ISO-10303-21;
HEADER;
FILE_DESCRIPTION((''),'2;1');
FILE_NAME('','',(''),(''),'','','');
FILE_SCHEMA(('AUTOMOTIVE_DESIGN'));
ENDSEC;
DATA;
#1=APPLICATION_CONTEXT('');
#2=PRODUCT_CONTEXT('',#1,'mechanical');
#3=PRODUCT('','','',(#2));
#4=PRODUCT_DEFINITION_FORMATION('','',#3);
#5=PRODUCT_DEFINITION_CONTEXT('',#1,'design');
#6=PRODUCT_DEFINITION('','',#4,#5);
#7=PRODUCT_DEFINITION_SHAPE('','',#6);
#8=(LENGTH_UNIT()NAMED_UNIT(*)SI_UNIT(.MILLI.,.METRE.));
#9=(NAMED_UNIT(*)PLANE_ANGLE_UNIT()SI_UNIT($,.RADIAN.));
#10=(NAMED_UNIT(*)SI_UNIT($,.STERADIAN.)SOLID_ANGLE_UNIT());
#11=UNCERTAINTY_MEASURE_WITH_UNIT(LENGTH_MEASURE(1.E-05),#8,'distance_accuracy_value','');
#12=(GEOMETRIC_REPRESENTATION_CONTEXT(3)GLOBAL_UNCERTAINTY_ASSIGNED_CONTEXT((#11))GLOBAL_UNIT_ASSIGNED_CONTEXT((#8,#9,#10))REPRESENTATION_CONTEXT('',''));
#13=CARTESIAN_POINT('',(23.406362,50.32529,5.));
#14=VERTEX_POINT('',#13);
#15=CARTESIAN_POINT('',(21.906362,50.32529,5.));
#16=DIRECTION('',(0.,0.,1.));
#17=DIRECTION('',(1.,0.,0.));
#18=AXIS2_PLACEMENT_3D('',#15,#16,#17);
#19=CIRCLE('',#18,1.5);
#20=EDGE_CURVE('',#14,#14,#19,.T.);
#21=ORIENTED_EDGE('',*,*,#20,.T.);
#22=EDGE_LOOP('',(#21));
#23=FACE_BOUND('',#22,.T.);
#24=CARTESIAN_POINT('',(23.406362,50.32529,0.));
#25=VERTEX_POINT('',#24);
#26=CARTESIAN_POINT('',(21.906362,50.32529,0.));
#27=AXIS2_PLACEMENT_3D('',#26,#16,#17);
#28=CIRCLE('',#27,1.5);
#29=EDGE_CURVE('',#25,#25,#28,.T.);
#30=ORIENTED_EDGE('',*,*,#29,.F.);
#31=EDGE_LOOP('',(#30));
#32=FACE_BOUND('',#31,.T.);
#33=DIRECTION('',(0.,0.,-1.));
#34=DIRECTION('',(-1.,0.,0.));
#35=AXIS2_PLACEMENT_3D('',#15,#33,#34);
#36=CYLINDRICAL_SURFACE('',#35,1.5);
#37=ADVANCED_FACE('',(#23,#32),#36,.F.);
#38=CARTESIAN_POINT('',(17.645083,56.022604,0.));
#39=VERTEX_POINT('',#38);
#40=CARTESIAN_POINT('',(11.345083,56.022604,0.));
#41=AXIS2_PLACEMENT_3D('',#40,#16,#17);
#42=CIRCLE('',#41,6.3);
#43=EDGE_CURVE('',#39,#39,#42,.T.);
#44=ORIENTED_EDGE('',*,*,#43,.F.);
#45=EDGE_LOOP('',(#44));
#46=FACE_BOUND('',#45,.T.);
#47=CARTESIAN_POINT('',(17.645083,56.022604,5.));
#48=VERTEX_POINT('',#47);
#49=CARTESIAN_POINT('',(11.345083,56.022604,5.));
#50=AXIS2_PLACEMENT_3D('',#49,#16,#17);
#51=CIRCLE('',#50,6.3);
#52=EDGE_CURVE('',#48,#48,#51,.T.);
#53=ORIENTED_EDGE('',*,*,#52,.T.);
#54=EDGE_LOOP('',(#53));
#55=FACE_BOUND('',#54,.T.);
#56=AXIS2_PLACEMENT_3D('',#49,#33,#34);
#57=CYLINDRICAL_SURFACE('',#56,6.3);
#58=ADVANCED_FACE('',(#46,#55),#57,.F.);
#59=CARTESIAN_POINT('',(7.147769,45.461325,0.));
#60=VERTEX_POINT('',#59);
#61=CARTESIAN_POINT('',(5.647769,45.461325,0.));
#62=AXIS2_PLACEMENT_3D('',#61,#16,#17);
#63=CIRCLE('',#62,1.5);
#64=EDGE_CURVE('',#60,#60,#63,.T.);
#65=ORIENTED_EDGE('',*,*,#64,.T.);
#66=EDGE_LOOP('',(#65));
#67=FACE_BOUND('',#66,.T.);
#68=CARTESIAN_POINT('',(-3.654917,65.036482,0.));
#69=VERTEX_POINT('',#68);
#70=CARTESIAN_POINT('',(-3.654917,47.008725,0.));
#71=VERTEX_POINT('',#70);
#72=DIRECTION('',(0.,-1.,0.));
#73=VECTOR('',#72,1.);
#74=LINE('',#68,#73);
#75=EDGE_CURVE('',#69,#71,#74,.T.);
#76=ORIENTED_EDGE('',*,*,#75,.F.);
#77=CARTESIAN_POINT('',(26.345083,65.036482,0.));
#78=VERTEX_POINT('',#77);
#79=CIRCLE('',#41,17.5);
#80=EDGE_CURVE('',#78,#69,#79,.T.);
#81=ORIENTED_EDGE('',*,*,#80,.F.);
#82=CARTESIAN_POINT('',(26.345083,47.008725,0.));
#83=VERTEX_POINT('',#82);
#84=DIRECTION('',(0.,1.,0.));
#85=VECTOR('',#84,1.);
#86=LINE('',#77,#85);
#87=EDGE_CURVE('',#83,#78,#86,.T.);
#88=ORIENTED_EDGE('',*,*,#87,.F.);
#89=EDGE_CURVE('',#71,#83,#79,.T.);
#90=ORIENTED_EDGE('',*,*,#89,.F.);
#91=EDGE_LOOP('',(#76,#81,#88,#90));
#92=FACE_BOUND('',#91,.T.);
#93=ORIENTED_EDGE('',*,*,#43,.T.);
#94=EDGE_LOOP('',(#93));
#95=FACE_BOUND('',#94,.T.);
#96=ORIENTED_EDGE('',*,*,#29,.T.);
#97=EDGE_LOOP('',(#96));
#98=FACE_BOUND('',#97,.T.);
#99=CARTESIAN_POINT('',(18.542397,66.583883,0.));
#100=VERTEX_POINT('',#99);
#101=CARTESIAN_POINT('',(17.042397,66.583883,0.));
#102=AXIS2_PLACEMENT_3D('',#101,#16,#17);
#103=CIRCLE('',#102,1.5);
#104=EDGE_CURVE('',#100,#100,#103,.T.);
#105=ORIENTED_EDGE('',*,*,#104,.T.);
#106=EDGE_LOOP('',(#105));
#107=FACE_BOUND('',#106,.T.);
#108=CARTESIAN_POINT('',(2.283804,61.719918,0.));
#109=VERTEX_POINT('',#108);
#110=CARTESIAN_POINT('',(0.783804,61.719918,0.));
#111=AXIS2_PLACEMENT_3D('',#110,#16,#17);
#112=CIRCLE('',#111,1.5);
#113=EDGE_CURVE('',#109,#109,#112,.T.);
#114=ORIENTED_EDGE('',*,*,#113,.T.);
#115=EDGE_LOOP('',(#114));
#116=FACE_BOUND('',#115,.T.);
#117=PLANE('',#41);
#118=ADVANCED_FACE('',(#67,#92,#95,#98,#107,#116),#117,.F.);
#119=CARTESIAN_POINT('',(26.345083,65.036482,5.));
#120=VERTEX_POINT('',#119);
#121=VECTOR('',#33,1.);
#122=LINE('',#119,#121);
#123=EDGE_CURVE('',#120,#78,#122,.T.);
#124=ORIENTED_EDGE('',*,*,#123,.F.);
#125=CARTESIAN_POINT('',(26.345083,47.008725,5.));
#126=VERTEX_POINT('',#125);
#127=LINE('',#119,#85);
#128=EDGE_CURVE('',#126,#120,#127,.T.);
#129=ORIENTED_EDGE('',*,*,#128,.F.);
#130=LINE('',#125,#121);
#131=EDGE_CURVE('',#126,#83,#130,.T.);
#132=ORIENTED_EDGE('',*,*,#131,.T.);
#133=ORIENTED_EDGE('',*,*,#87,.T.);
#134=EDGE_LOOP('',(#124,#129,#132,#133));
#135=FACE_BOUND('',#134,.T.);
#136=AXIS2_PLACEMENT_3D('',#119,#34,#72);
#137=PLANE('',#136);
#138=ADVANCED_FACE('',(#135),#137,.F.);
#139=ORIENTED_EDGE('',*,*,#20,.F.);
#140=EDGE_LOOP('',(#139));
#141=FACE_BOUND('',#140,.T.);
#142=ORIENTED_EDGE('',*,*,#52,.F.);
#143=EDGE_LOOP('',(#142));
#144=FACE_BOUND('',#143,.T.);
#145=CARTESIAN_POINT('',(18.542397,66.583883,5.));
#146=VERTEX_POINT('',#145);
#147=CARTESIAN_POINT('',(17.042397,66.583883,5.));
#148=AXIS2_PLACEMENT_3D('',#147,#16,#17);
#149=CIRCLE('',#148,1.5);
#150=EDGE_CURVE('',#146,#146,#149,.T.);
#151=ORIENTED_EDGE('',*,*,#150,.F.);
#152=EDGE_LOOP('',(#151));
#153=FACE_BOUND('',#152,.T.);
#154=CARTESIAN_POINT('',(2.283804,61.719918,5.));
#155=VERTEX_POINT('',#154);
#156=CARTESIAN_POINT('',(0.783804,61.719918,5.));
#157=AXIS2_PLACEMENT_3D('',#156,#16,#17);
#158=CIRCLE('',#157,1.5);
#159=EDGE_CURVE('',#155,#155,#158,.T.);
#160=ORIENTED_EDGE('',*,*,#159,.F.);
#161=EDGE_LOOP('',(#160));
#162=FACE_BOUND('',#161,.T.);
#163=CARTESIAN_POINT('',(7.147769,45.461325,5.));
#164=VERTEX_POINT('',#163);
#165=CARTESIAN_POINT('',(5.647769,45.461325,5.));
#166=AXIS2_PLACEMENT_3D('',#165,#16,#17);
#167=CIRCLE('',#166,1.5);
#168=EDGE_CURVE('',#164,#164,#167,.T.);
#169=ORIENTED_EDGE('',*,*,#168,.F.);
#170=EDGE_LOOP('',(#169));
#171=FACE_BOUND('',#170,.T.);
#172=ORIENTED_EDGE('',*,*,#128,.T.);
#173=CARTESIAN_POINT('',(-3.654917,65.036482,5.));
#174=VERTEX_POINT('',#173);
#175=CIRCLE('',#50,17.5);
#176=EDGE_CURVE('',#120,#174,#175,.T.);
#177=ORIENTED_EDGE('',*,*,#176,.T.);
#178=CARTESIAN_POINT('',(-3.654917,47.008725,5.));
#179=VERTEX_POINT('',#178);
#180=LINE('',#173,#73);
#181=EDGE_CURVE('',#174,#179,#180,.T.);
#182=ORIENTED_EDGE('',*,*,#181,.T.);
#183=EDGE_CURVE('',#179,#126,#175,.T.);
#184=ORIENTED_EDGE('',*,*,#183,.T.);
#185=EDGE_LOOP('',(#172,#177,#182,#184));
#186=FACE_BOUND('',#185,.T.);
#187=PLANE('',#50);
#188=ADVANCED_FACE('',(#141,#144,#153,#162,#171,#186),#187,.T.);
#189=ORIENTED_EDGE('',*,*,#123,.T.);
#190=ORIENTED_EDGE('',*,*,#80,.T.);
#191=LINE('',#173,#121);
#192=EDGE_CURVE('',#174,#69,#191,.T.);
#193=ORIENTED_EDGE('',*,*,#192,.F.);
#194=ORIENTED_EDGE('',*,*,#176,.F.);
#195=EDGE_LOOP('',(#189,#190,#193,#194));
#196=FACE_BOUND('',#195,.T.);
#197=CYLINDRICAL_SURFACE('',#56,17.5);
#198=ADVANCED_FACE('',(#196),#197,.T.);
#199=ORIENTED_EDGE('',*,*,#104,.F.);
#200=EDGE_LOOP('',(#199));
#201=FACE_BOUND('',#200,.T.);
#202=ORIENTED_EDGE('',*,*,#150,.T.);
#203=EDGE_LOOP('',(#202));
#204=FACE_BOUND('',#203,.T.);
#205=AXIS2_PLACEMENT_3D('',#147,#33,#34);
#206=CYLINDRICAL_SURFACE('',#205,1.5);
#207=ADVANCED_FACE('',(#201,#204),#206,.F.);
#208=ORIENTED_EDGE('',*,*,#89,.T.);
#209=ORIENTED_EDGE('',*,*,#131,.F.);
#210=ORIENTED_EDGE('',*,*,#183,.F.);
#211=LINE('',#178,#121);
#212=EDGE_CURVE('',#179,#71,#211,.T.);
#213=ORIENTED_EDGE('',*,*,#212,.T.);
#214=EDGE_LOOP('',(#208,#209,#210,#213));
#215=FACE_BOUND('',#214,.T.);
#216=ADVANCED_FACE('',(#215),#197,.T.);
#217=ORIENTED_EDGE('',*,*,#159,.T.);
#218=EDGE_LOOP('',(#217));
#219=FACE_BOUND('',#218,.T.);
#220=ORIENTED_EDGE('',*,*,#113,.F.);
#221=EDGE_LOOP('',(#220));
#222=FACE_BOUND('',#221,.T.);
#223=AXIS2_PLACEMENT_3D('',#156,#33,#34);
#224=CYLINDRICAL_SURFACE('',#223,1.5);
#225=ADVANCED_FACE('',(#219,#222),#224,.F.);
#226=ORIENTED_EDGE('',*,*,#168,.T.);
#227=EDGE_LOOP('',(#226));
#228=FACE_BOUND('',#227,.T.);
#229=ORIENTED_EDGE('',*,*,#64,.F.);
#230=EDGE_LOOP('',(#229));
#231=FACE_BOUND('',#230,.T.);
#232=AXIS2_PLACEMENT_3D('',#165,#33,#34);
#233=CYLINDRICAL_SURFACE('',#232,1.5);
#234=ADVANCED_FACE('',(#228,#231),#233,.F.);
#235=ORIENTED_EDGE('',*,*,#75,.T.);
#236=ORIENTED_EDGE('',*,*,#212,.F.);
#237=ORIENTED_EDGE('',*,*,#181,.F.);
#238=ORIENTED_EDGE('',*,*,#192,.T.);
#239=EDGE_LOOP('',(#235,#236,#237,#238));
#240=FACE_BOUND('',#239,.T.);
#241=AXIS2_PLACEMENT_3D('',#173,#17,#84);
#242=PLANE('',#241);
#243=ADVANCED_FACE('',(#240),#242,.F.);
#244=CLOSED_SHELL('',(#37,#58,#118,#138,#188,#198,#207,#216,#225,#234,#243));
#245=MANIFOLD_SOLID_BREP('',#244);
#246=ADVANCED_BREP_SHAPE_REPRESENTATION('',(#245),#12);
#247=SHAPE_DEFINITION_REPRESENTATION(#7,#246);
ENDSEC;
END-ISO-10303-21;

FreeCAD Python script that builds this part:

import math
import FreeCAD as App
import Part
import Sketcher

doc = App.newDocument("Part")
params = doc.addObject("Spreadsheet::Sheet", "Params")
for row, (alias, value) in enumerate([
    ("sketch1_diameter", "3 mm"),
    ("sketch1_diameter2", "12.6 mm"),
    ("sketch1_radius", "17.5 mm"),
    ("pad1_length", "5 mm"),
], start=1):
    params.set(f"A{row}", alias)
    params.set(f"B{row}", "=" + value)
    params.setAlias(f"B{row}", alias)

body = doc.addObject("PartDesign::Body", "Body")

sketch1 = body.newObject("Sketcher::SketchObject", "Sketch")
sketch1.AttachmentSupport = (doc.getObject("XY_Plane"), [""])
sketch1.MapMode = "FlatFace"
sketch1.addGeometry(Part.LineSegment(App.Vector(-3.7, 65, 0), App.Vector(-3.7, 47, 0)), False)
sketch1.addGeometry(Part.ArcOfCircle(Part.Circle(App.Vector(11.3, 56, 0), App.Vector(0, 0, 1), 17.5), math.radians(-149), math.radians(-31)), False)
sketch1.addGeometry(Part.LineSegment(App.Vector(26.3, 47, 0), App.Vector(26.3, 65, 0)), False)
sketch1.addGeometry(Part.ArcOfCircle(Part.Circle(App.Vector(11.3, 56, 0), App.Vector(0, 0, 1), 17.5), math.radians(31), math.radians(149)), False)
sketch1.addGeometry(Part.Circle(App.Vector(5.6, 45.5, 0), App.Vector(0, 0, 1), 1.5), False)
sketch1.addGeometry(Part.Circle(App.Vector(11.3, 56, 0), App.Vector(0, 0, 1), 6.3), False)
sketch1.addGeometry(Part.Circle(App.Vector(21.9, 50.3, 0), App.Vector(0, 0, 1), 1.5), False)
sketch1.addGeometry(Part.Circle(App.Vector(0.8, 61.7, 0), App.Vector(0, 0, 1), 1.5), False)
sketch1.addGeometry(Part.Circle(App.Vector(17, 66.6, 0), App.Vector(0, 0, 1), 1.5), False)
sketch1.addConstraint(Sketcher.Constraint("Coincident", 0, 2, 1, 1))
sketch1.addConstraint(Sketcher.Constraint("Coincident", 1, 2, 2, 1))
sketch1.addConstraint(Sketcher.Constraint("Coincident", 2, 2, 3, 1))
sketch1.addConstraint(Sketcher.Constraint("Coincident", 3, 2, 0, 1))
sketch1.addConstraint(Sketcher.Constraint("Vertical", 0))
sketch1.addConstraint(Sketcher.Constraint("Vertical", 2))
sketch1.addConstraint(Sketcher.Constraint("Coincident", 3, 3, 1, 3))
sketch1.addConstraint(Sketcher.Constraint("Coincident", 5, 3, 1, 3))
sketch1.addConstraint(Sketcher.Constraint("Equal", 1, 3))
sketch1.addConstraint(Sketcher.Constraint("Equal", 4, 6))
sketch1.addConstraint(Sketcher.Constraint("Equal", 6, 7))
sketch1.addConstraint(Sketcher.Constraint("Equal", 7, 8))
sketch1.addConstraint(Sketcher.Constraint("Horizontal", 0, 2, 1, 2))
sketch1.addConstraint(Sketcher.Constraint("Diameter", 4, 3.0))
sketch1.addConstraint(Sketcher.Constraint("Diameter", 5, 12.6))
sketch1.addConstraint(Sketcher.Constraint("Radius", 1, 17.5))
sketch1.addConstraint(Sketcher.Constraint("DistanceX", 0, 2, 1, 3, 15.0))
sketch1.addConstraint(Sketcher.Constraint("DistanceY", 4, 3, 0, 2, 1.547401))
sketch1.addConstraint(Sketcher.Constraint("DistanceY", 2, 2, 8, 3, 1.547401))
sketch1.addConstraint(Sketcher.Constraint("DistanceX", -1, 1, 4, 3, 5.647769))
sketch1.addConstraint(Sketcher.Constraint("DistanceX", -1, 1, 6, 3, 21.906362))
sketch1.addConstraint(Sketcher.Constraint("DistanceY", -1, 1, 6, 3, 50.32529))
sketch1.addConstraint(Sketcher.Constraint("DistanceY", -1, 1, 2, 2, 65.036482))
sketch1.addConstraint(Sketcher.Constraint("DistanceX", 1, 3, 6, 3, 10.561279))
sketch1.addConstraint(Sketcher.Constraint("DistanceX", 7, 3, 3, 3, 10.561279))
sketch1.addConstraint(Sketcher.Constraint("DistanceY", 6, 3, 7, 3, 11.394628))
sketch1.addConstraint(Sketcher.Constraint("DistanceX", -1, 1, 8, 3, 17.042397))
sketch1.setExpression("Constraints[13]", "Params.sketch1_diameter")
sketch1.setExpression("Constraints[14]", "Params.sketch1_diameter2")
sketch1.setExpression("Constraints[15]", "Params.sketch1_radius")
pad1 = body.newObject("PartDesign::Pad", "Pad")
pad1.Profile = sketch1
pad1.setExpression("Length", "Params.pad1_length")

doc.recompute()
